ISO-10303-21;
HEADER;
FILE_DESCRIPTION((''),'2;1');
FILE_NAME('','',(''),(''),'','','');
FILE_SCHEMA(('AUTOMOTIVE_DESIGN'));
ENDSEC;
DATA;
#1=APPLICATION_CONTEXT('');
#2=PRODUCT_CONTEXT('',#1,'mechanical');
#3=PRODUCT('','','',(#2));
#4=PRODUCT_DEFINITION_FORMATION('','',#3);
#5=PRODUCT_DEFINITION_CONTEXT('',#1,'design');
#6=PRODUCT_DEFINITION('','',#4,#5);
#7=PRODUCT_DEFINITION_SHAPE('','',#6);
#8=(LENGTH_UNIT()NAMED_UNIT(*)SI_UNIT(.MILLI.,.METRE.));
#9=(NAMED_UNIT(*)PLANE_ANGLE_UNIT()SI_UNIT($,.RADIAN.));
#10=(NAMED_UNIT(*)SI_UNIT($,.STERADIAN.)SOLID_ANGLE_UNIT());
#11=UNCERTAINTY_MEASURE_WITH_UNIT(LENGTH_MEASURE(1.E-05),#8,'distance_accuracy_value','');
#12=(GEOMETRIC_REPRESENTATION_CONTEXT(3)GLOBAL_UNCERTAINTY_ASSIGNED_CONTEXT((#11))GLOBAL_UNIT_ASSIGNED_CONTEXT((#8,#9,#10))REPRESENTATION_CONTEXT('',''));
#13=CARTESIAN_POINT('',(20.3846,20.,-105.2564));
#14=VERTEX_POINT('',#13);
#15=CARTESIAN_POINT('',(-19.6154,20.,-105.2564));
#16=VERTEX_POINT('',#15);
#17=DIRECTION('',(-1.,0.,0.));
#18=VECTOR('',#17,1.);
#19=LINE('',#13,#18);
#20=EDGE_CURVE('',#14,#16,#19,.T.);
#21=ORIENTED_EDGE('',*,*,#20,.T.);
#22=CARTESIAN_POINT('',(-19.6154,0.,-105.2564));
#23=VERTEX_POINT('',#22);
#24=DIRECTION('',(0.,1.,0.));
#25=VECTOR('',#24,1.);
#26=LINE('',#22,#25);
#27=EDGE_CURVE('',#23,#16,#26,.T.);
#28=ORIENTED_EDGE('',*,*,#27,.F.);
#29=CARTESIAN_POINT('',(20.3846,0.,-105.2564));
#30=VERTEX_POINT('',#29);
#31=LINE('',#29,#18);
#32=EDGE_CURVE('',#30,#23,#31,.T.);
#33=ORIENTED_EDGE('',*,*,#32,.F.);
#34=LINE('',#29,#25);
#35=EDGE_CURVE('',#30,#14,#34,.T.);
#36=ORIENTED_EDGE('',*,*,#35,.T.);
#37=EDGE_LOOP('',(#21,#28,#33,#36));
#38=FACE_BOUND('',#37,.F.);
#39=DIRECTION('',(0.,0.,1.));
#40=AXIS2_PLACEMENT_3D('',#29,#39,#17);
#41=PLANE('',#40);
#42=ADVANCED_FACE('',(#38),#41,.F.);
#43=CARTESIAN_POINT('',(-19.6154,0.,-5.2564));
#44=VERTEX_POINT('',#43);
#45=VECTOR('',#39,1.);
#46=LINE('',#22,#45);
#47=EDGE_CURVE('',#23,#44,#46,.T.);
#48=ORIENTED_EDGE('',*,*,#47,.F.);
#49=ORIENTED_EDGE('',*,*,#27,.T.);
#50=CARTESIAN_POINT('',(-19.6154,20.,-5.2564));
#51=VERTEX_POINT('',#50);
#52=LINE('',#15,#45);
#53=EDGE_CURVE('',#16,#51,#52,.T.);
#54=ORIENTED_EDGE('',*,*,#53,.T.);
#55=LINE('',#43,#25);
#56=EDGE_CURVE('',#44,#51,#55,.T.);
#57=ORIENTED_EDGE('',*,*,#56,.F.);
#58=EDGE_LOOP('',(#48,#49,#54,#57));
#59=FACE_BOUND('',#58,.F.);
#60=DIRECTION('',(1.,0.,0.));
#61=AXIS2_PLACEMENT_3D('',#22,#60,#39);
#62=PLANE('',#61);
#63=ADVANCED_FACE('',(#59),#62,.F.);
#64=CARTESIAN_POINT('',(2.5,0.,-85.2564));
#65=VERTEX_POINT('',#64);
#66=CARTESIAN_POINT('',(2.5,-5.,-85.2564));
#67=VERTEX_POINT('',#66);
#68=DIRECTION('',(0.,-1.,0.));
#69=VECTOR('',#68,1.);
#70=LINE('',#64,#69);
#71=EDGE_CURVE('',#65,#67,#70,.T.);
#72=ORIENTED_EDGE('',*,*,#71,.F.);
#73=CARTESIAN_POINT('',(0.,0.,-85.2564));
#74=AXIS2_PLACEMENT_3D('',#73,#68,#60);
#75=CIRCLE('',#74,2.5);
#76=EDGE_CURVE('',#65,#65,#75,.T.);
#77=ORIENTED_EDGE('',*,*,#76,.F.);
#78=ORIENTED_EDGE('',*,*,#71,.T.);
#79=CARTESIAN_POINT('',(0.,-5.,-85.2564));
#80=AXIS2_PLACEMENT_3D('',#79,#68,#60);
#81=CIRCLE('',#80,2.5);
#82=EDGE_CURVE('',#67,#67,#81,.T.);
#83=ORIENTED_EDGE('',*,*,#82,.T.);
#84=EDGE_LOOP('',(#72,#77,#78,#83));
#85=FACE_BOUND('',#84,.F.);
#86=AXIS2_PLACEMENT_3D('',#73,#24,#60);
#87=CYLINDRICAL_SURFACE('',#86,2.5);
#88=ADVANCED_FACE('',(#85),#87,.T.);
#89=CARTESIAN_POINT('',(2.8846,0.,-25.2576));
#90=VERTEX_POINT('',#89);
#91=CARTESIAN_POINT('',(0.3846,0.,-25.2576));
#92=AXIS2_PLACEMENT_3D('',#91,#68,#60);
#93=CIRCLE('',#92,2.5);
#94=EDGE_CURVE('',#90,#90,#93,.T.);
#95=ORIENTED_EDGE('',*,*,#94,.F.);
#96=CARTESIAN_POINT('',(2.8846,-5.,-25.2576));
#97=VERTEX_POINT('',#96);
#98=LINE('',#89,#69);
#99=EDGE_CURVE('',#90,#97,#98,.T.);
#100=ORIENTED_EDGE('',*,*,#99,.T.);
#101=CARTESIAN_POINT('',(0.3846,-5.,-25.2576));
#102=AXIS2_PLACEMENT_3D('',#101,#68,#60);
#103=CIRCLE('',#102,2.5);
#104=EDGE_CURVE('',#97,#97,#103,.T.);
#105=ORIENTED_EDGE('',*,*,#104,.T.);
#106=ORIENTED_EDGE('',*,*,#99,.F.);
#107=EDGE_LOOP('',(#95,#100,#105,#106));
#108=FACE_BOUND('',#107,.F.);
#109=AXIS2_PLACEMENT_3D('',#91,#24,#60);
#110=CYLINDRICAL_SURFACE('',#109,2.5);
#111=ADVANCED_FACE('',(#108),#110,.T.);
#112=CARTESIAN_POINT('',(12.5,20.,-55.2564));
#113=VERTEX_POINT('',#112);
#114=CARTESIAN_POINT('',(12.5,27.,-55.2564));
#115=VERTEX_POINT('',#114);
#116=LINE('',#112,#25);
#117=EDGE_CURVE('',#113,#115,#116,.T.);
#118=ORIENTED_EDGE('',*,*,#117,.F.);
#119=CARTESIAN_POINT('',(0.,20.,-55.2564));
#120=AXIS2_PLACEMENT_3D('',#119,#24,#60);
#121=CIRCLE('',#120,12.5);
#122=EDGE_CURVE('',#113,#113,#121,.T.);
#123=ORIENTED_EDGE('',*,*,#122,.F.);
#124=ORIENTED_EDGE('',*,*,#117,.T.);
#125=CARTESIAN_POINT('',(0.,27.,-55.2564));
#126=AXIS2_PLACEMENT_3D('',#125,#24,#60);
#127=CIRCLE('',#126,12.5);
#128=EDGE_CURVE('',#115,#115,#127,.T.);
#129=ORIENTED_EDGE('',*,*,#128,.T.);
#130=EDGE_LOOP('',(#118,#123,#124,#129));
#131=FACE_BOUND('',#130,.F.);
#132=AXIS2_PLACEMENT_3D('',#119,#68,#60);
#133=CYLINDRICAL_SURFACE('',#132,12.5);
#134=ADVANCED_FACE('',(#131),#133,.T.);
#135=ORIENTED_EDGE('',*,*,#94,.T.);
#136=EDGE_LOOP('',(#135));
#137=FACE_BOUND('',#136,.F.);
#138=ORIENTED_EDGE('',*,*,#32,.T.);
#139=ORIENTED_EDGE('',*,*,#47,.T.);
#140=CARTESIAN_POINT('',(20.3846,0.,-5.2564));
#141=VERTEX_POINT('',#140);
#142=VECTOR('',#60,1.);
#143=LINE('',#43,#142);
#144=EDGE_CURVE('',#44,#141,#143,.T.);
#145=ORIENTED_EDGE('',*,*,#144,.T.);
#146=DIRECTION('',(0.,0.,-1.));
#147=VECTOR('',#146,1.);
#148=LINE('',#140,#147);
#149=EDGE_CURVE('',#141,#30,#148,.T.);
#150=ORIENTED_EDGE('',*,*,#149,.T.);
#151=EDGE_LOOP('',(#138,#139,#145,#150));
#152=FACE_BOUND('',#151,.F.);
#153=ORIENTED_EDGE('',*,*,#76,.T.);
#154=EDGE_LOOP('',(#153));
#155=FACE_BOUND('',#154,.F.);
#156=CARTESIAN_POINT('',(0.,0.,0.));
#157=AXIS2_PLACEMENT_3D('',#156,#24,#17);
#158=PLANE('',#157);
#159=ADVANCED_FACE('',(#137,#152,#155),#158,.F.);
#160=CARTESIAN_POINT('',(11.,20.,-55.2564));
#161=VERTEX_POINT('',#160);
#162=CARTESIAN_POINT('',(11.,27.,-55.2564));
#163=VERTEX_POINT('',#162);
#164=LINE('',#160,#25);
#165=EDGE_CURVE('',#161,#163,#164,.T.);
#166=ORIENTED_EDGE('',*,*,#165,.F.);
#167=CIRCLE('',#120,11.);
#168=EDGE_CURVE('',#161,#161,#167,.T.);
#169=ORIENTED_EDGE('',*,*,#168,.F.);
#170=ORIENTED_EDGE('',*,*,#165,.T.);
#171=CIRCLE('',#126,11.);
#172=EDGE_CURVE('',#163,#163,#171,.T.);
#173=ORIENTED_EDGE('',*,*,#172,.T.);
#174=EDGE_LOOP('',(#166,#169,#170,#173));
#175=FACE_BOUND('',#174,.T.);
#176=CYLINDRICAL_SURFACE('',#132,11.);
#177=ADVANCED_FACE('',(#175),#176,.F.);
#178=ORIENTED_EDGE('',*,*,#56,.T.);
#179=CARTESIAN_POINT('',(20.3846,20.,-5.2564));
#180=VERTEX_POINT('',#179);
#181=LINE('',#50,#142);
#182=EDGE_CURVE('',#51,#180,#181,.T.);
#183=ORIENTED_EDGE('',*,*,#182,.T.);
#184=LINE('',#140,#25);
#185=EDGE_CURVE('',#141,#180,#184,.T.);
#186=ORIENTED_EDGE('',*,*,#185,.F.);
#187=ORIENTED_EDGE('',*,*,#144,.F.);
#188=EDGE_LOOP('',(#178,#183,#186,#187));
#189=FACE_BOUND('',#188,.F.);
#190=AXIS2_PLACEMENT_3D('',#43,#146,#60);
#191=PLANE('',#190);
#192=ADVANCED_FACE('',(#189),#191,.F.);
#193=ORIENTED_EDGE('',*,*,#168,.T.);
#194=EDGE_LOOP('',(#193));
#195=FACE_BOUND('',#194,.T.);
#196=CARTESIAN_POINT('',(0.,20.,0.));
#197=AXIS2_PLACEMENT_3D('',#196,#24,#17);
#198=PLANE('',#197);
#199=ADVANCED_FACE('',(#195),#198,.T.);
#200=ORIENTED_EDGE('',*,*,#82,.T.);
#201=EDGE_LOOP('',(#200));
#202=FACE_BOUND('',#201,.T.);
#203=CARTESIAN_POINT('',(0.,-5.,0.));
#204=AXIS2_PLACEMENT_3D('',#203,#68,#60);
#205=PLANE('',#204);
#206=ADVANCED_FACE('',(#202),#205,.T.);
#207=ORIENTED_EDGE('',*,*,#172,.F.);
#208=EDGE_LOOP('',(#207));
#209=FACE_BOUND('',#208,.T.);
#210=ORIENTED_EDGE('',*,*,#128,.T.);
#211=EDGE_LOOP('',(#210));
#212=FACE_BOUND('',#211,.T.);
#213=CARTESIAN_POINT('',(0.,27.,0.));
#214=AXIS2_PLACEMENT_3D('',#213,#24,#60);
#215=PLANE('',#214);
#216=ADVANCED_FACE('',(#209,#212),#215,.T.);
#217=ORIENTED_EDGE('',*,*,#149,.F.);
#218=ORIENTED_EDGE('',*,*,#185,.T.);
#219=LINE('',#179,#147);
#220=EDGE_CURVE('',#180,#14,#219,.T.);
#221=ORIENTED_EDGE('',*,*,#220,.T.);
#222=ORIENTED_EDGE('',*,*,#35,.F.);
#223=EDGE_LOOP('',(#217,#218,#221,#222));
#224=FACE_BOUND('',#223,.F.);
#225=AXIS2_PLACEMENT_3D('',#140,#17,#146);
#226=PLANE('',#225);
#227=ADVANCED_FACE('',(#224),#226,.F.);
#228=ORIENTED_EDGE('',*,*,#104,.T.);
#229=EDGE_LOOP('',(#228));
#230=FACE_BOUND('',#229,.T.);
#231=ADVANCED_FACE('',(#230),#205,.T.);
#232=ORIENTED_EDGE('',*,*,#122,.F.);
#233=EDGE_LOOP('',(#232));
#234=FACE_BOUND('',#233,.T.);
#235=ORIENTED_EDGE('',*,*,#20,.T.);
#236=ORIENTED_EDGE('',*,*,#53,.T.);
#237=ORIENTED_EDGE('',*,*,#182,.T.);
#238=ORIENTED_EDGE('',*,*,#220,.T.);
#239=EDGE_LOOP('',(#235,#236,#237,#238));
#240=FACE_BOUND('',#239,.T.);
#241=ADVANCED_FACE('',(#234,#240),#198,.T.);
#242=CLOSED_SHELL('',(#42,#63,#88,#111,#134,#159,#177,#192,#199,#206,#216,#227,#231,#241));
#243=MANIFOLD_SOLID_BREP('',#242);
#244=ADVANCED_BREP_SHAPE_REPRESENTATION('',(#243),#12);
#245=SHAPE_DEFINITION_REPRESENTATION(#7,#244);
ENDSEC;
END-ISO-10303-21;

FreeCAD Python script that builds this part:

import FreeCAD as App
import Part
import Sketcher
from FreeCAD import Vector

doc = App.newDocument("Part")
body = doc.addObject("PartDesign::Body", "Body")

# Sketch on XZ plane
sketch1 = doc.addObject("Sketcher::SketchObject", "Sketch")
body.addObject(sketch1)
sketch1.AttachmentSupport = (doc.XZ_Plane, [""])
sketch1.MapMode = "FlatFace"
sketch1.addGeometry([
    Part.LineSegment(Vector(-19.6154, -105.2564, 0), Vector(-19.6154, -5.2564, 0)),
    Part.LineSegment(Vector(-19.6154, -5.2564, 0), Vector(20.3846, -5.2564, 0)),
    Part.LineSegment(Vector(20.3846, -5.2564, 0), Vector(20.3846, -105.2564, 0)),
    Part.LineSegment(Vector(20.3846, -105.2564, 0), Vector(-19.6154, -105.2564, 0)),
], False)
sketch1.addConstraint([
    Sketcher.Constraint("Coincident", 0, 2, 1, 1),
    Sketcher.Constraint("Coincident", 1, 2, 2, 1),
    Sketcher.Constraint("Coincident", 2, 2, 3, 1),
    Sketcher.Constraint("Coincident", 3, 2, 0, 1),
    Sketcher.Constraint("Vertical", 0),
    Sketcher.Constraint("Horizontal", 1),
    Sketcher.Constraint("Vertical", 2),
    Sketcher.Constraint("Horizontal", 3),
    Sketcher.Constraint("DistanceX", 1, 1, 1, 2, 40.0),
    Sketcher.Constraint("DistanceY", 0, 1, 0, 2, 100.0),
    Sketcher.Constraint("DistanceX", 0, 2, -1, 1, 19.6154),
    Sketcher.Constraint("DistanceY", 0, 2, -1, 1, 5.2564),
])
pad1 = doc.addObject("PartDesign::Pad", "Pad")
body.addObject(pad1)
pad1.Profile = sketch1
pad1.Length = 20
pad1.Reversed = True

# Sketch on XZ plane
sketch2 = doc.addObject("Sketcher::SketchObject", "Sketch001")
body.addObject(sketch2)
sketch2.AttachmentSupport = (doc.XZ_Plane, [""])
sketch2.MapMode = "FlatFace"
sketch2.AttachmentOffset = App.Placement(Vector(0, 0, -20), App.Rotation())
sketch2.addGeometry([
    Part.Circle(Vector(0, -55.2564, 0), Vector(0, 0, 1), 12.5),
    Part.Circle(Vector(0, -55.2564, 0), Vector(0, 0, 1), 11),
], False)
sketch2.addConstraint([
    Sketcher.Constraint("Coincident", 1, 3, 0, 3),
    Sketcher.Constraint("PointOnObject", 0, 3, -2),
    Sketcher.Constraint("Diameter", 0, 25.0),
    Sketcher.Constraint("Diameter", 1, 22.0),
    Sketcher.Constraint("DistanceY", 0, 3, -1, 1, 55.2564),
])
pad2 = doc.addObject("PartDesign::Pad", "Pad001")
body.addObject(pad2)
pad2.Profile = sketch2
pad2.Length = 7
pad2.Reversed = True

# Sketch on XZ plane
sketch3 = doc.addObject("Sketcher::SketchObject", "Sketch002")
body.addObject(sketch3)
sketch3.AttachmentSupport = (doc.XZ_Plane, [""])
sketch3.MapMode = "FlatFace"
sketch3.addGeometry([
    Part.Circle(Vector(0.3846, -25.2576, 0), Vector(0, 0, 1), 2.5),
    Part.Circle(Vector(0, -85.2564, 0), Vector(0, 0, 1), 2.5),
], False)
sketch3.addConstraint([
    Sketcher.Constraint("Equal", 0, 1),
    Sketcher.Constraint("PointOnObject", 1, 3, -2),
    Sketcher.Constraint("Diameter", 0, 5.0),
    Sketcher.Constraint("DistanceX", -1, 1, 0, 3, 0.3846),
    Sketcher.Constraint("DistanceY", 0, 3, -1, 1, 25.2576),
    Sketcher.Constraint("DistanceY", 1, 3, -1, 1, 85.2564),
])
pad3 = doc.addObject("PartDesign::Pad", "Pad002")
body.addObject(pad3)
pad3.Profile = sketch3
pad3.Length = 5

doc.recompute()
